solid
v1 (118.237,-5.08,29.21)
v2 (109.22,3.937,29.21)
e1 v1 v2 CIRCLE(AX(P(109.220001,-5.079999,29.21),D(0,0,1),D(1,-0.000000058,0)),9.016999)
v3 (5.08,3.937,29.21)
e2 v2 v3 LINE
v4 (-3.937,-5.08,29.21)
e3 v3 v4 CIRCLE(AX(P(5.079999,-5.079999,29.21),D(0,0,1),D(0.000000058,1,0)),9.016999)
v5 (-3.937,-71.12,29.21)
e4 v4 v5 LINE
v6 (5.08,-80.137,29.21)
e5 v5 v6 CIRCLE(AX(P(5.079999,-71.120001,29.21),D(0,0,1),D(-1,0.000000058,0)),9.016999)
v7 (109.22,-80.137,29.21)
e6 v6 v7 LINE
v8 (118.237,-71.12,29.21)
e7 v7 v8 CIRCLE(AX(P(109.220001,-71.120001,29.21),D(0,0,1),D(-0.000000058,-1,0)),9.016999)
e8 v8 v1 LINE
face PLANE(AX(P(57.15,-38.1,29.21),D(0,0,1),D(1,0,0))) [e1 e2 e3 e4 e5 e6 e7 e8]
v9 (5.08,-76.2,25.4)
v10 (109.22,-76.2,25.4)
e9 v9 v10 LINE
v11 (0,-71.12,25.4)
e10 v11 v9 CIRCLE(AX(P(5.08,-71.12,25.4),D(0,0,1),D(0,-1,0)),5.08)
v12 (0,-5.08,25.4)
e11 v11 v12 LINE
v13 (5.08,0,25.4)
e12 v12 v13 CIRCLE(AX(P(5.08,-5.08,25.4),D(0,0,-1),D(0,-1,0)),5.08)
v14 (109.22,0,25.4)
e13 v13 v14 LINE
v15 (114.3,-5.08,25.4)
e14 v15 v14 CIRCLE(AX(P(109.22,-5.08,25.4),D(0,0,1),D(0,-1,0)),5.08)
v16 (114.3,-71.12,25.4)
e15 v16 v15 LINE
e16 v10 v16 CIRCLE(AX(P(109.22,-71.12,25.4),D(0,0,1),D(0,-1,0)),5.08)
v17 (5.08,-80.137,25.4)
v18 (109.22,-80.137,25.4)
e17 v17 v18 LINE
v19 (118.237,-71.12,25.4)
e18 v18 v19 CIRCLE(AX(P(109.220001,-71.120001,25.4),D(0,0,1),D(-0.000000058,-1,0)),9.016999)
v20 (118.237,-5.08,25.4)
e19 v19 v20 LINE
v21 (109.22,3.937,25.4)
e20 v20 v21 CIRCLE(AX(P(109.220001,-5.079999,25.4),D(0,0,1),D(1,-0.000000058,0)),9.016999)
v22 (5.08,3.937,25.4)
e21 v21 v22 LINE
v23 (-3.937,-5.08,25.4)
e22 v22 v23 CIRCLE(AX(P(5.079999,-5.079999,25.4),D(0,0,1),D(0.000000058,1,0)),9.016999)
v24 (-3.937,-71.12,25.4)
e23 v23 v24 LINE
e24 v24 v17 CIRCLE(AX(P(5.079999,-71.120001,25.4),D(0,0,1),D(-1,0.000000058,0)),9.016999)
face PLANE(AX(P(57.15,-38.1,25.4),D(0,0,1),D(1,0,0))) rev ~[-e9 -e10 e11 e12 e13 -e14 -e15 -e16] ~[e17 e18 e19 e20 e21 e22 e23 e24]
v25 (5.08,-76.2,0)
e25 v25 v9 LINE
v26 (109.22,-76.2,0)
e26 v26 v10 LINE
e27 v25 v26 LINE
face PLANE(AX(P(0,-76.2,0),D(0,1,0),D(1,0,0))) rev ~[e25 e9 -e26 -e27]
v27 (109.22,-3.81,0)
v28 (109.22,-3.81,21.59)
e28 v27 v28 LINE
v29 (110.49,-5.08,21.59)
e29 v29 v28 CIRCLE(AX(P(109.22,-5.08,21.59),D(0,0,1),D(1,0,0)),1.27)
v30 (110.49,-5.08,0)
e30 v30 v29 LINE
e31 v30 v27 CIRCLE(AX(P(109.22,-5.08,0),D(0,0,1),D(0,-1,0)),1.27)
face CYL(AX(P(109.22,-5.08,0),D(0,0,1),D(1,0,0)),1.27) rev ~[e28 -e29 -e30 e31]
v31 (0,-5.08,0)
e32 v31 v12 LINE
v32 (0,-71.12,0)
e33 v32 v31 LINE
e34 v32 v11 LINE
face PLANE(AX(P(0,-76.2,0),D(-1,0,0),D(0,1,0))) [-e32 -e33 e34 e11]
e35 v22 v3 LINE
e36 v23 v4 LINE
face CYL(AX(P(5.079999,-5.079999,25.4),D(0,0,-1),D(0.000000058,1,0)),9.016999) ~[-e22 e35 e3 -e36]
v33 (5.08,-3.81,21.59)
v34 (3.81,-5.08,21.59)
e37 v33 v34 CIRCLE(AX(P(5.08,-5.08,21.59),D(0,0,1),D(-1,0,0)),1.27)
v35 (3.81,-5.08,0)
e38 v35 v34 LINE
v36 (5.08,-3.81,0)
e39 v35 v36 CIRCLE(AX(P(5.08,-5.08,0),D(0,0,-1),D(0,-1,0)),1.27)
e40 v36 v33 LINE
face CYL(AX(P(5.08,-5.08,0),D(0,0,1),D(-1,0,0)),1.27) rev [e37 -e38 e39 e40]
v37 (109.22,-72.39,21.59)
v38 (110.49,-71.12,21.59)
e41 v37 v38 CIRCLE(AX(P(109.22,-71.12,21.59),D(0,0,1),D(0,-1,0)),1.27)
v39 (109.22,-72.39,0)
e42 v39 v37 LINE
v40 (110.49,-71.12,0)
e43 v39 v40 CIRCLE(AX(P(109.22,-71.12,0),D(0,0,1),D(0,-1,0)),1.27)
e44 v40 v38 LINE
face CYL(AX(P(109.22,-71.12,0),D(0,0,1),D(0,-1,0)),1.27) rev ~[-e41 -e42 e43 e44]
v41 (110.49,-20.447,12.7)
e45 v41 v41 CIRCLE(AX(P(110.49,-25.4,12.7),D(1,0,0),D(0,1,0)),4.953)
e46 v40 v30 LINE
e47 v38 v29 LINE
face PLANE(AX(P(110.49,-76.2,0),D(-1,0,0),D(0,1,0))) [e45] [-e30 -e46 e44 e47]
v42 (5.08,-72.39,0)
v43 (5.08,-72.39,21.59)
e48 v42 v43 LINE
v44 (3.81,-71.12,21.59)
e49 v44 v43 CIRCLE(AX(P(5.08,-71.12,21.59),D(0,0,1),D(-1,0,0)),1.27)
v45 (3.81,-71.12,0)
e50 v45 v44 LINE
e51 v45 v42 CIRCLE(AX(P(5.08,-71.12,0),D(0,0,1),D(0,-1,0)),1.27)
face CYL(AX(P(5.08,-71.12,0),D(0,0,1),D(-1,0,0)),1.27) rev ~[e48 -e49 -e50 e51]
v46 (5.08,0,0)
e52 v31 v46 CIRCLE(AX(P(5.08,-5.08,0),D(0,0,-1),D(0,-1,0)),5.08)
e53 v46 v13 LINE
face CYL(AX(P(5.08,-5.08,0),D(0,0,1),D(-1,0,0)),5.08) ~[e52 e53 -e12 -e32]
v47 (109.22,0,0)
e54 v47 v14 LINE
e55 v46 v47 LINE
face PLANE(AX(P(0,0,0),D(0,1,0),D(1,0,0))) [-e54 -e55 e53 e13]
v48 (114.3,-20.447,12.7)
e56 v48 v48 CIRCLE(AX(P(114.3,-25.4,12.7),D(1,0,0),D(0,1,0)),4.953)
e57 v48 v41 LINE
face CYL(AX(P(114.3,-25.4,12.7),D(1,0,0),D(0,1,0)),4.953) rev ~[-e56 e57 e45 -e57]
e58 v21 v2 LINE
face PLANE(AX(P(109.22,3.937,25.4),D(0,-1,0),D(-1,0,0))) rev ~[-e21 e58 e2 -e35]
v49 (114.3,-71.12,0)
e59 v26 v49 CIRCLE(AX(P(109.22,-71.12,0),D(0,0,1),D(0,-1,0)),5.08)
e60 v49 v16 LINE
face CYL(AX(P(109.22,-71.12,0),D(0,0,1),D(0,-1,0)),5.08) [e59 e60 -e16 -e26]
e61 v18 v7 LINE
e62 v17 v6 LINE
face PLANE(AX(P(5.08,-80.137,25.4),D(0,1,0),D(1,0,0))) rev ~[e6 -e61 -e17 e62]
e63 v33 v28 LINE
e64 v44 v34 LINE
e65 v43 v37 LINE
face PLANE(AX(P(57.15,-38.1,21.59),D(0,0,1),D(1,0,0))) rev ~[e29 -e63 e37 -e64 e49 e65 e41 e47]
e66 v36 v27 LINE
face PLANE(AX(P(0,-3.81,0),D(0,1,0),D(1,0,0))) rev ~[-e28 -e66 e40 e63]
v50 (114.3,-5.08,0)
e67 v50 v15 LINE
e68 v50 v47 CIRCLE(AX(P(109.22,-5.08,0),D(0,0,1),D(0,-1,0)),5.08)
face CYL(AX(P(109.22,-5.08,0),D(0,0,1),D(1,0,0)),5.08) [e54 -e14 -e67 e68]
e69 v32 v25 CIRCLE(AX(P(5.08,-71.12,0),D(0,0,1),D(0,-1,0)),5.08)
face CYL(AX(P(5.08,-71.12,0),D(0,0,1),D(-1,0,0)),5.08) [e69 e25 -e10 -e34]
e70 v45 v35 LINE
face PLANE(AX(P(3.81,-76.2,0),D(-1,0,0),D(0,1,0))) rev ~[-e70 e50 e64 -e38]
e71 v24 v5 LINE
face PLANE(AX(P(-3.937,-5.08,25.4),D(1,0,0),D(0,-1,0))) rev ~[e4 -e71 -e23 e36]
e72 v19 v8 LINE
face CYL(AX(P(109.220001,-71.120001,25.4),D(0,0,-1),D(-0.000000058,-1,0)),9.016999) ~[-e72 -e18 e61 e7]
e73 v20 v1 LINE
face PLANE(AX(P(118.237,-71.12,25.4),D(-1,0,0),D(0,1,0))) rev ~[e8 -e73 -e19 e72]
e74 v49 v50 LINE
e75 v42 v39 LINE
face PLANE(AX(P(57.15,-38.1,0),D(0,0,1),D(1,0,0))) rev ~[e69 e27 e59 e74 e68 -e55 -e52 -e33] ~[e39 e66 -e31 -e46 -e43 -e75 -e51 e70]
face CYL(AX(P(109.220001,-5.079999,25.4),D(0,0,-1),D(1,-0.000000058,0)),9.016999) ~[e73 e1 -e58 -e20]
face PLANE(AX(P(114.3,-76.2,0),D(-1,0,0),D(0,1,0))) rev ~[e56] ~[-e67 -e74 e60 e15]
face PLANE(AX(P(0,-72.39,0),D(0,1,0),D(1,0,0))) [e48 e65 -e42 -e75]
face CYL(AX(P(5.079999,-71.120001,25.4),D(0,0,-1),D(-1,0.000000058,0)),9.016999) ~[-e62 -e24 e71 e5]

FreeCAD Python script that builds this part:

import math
import FreeCAD as App
import Part
import Sketcher
from FreeCAD import Vector
Q = App.Units.Quantity


def edges_at(feature, points):
    """Names of the edges that pass closest to the given points."""
    edges = feature.Shape.Edges
    near = lambda p: min(range(len(edges)), key=lambda i: edges[i].distToShape(Part.Vertex(*p))[0])
    return sorted({f"Edge{near(p) + 1}" for p in points})


def faces_at(feature, points):
    """Names of the faces that lie closest to the given points."""
    faces = feature.Shape.Faces
    near = lambda p: min(range(len(faces)), key=lambda i: faces[i].distToShape(Part.Vertex(*p))[0])
    return sorted({f"Face{near(p) + 1}" for p in points})

doc = App.newDocument("Part")
params = doc.addObject("Spreadsheet::Sheet", "Params")
for row, (alias, value) in enumerate([
    ("sketch1_height", "3 in"),
    ("sketch1_width", "4.5 in"),
    ("pad1_length", "1 in"),
    ("fillet_radius", "0.2 in"),
    ("thickness_wall", "0.15 in"),
    ("sketch2_diameter", "0.39 in"),
    ("pocket1_length", "1 in"),
    ("sketch3_width", "4.1 in"),
    ("sketch3_height", "2.6 in"),
    ("sketch3_radius", "0.355 in"),
    ("pad2_length", "0.15 in"),
], start=1):
    params.set(f"A{row}", alias)
    params.set(f"B{row}", "=" + value)
    params.setAlias(f"B{row}", alias)

body = doc.addObject("PartDesign::Body", "Body")

# Sketch on XY plane
sketch1 = doc.addObject("Sketcher::SketchObject", "Sketch")
body.addObject(sketch1)
sketch1.AttachmentSupport = (doc.XY_Plane, [""])
sketch1.MapMode = "FlatFace"
sketch1.addGeometry(Part.LineSegment(Vector(0, 0, 0), Vector(0, -76, 0)), False)
sketch1.addGeometry(Part.LineSegment(Vector(0, -76, 0), Vector(114, -76, 0)), False)
sketch1.addGeometry(Part.LineSegment(Vector(114, -76, 0), Vector(114, 0, 0)), False)
sketch1.addGeometry(Part.LineSegment(Vector(114, 0, 0), Vector(0, 0, 0)), False)
sketch1.addConstraint(Sketcher.Constraint("Coincident", 0, 2, 1, 1))
sketch1.addConstraint(Sketcher.Constraint("Coincident", 1, 2, 2, 1))
sketch1.addConstraint(Sketcher.Constraint("Coincident", 2, 2, 3, 1))
sketch1.addConstraint(Sketcher.Constraint("Coincident", 3, 2, 0, 1))
sketch1.addConstraint(Sketcher.Constraint("Vertical", 0))
sketch1.addConstraint(Sketcher.Constraint("Horizontal", 1))
sketch1.addConstraint(Sketcher.Constraint("Vertical", 2))
sketch1.addConstraint(Sketcher.Constraint("Horizontal", 3))
sketch1.addConstraint(Sketcher.Constraint("Coincident", 3, 2, -1, 1))
sketch1.addConstraint(Sketcher.Constraint("DistanceY", 0, 2, 0, 1, Q("3 in")))
sketch1.addConstraint(Sketcher.Constraint("DistanceX", 1, 1, 1, 2, Q("4.5 in")))
sketch1.setExpression("Constraints[9]", "Params.sketch1_height")
sketch1.setExpression("Constraints[10]", "Params.sketch1_width")
pad1 = doc.addObject("PartDesign::Pad", "Pad")
body.addObject(pad1)
pad1.Profile = sketch1
pad1.setExpression("Length", "Params.pad1_length")
doc.recompute()

fillet = doc.addObject("PartDesign::Fillet", "Fillet")
body.addObject(fillet)
fillet.Base = (pad1, edges_at(pad1, [
    (114.3, 0, 12.7),
    (114.3, -76.2, 12.7),
    (0, 0, 12.7),
    (0, -76.2, 12.7),
]))
fillet.setExpression("Radius", "Params.fillet_radius")
doc.recompute()

thickness = doc.addObject("PartDesign::Thickness", "Thickness")
body.addObject(thickness)
thickness.Base = (fillet, faces_at(fillet, [(57.15, -38.1, 0)]))
thickness.setExpression("Value", "Params.thickness_wall")
thickness.Reversed = True
thickness.Join = "Arc"

# Sketch on YZ plane
sketch2 = doc.addObject("Sketcher::SketchObject", "Sketch001")
body.addObject(sketch2)
sketch2.AttachmentSupport = (doc.YZ_Plane, [""])
sketch2.MapMode = "FlatFace"
sketch2.AttachmentOffset = App.Placement(Vector(0, 0, 4.5 * 25.4), App.Rotation())
sketch2.addGeometry(Part.Circle(Vector(-25.4, 12.7, 0), Vector(0, 0, 1), 5), False)
sketch2.addConstraint(Sketcher.Constraint("Diameter", 0, Q("0.39 in")))
sketch2.addConstraint(Sketcher.Constraint("DistanceX", 0, 3, -1, 1, Q("1 in")))
sketch2.addConstraint(Sketcher.Constraint("DistanceY", -1, 1, 0, 3, Q("0.5 in")))
sketch2.setExpression("Constraints[0]", "Params.sketch2_diameter")
pocket1 = doc.addObject("PartDesign::Pocket", "Pocket")
body.addObject(pocket1)
pocket1.Profile = sketch2
pocket1.setExpression("Length", "Params.pocket1_length")

# Sketch on XY plane
sketch3 = doc.addObject("Sketcher::SketchObject", "Sketch002")
body.addObject(sketch3)
sketch3.AttachmentSupport = (doc.XY_Plane, [""])
sketch3.MapMode = "FlatFace"
sketch3.AttachmentOffset = App.Placement(Vector(0, 0, 1 * 25.4), App.Rotation())
sketch3.addGeometry(Part.LineSegment(Vector(109, 4, 0), Vector(5, 4, 0)), False)
sketch3.addGeometry(Part.ArcOfCircle(Part.Circle(Vector(5, -5, 0), Vector(0, 0, 1), 9), math.radians(90), math.radians(180)), False)
sketch3.addGeometry(Part.LineSegment(Vector(-4, -5, 0), Vector(-4, -71, 0)), False)
sketch3.addGeometry(Part.ArcOfCircle(Part.Circle(Vector(5, -71, 0), Vector(0, 0, 1), 9), math.radians(180), math.radians(270)), False)
sketch3.addGeometry(Part.LineSegment(Vector(5, -80, 0), Vector(109, -80, 0)), False)
sketch3.addGeometry(Part.ArcOfCircle(Part.Circle(Vector(109, -71, 0), Vector(0, 0, 1), 9), math.radians(-90), math.radians(0)), False)
sketch3.addGeometry(Part.LineSegment(Vector(118, -71, 0), Vector(118, -5, 0)), False)
sketch3.addGeometry(Part.ArcOfCircle(Part.Circle(Vector(109, -5, 0), Vector(0, 0, 1), 9), math.radians(0), math.radians(90)), False)
sketch3.addConstraint(Sketcher.Constraint("Tangent", 0, 2, 1, 1))
sketch3.addConstraint(Sketcher.Constraint("Tangent", 1, 2, 2, 1))
sketch3.addConstraint(Sketcher.Constraint("Tangent", 2, 2, 3, 1))
sketch3.addConstraint(Sketcher.Constraint("Tangent", 3, 2, 4, 1))
sketch3.addConstraint(Sketcher.Constraint("Tangent", 4, 2, 5, 1))
sketch3.addConstraint(Sketcher.Constraint("Tangent", 5, 2, 6, 1))
sketch3.addConstraint(Sketcher.Constraint("Tangent", 6, 2, 7, 1))
sketch3.addConstraint(Sketcher.Constraint("Tangent", 7, 2, 0, 1))
sketch3.addConstraint(Sketcher.Constraint("Horizontal", 0))
sketch3.addConstraint(Sketcher.Constraint("Vertical", 2))
sketch3.addConstraint(Sketcher.Constraint("Horizontal", 4))
sketch3.addConstraint(Sketcher.Constraint("Vertical", 6))
sketch3.addConstraint(Sketcher.Constraint("Equal", 1, 3))
sketch3.addConstraint(Sketcher.Constraint("Equal", 3, 5))
sketch3.addConstraint(Sketcher.Constraint("Equal", 5, 7))
sketch3.addConstraint(Sketcher.Constraint("DistanceX", 0, 2, 0, 1, Q("4.1 in")))
sketch3.addConstraint(Sketcher.Constraint("DistanceY", 2, 2, 2, 1, Q("2.6 in")))
sketch3.addConstraint(Sketcher.Constraint("Radius", 1, Q("0.355 in")))
sketch3.addConstraint(Sketcher.Constraint("DistanceX", -1, 1, 1, 3, Q("0.2 in")))
sketch3.addConstraint(Sketcher.Constraint("DistanceY", 1, 3, -1, 1, Q("0.2 in")))
sketch3.setExpression("Constraints[15]", "Params.sketch3_width")
sketch3.setExpression("Constraints[16]", "Params.sketch3_height")
sketch3.setExpression("Constraints[17]", "Params.sketch3_radius")
pad2 = doc.addObject("PartDesign::Pad", "Pad001")
body.addObject(pad2)
pad2.Profile = sketch3
pad2.setExpression("Length", "Params.pad2_length")

doc.recompute()
